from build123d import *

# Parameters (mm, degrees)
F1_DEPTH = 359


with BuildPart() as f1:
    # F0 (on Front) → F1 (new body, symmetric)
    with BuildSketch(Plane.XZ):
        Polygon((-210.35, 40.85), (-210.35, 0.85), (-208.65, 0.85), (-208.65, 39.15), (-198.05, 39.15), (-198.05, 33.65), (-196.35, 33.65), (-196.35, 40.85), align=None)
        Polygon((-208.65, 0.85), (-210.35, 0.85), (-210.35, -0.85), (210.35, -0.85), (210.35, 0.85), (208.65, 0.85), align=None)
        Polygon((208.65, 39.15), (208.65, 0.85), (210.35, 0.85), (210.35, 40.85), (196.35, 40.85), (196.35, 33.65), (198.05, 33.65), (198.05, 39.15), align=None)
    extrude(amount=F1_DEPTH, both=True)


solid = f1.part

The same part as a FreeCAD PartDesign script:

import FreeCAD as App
import Part
import Sketcher

V = App.Vector


def add_polygon(sketch, points):
    """Adds a closed chain of lines whose ends are joined by coincident constraints."""
    first, n = sketch.GeometryCount, len(points)
    for a, b in zip(points, points[1:] + points[:1]):
        sketch.addGeometry(Part.LineSegment(App.Vector(*a, 0), App.Vector(*b, 0)), False)
    for i in range(n):
        sketch.addConstraint(Sketcher.Constraint("Coincident", first + i, 2, first + (i + 1) % n, 1))

doc = App.newDocument("Part")
body = doc.addObject("PartDesign::Body", "Body")

# Sketch on XZ plane
sketch1 = doc.addObject("Sketcher::SketchObject", "Sketch")
body.addObject(sketch1)
sketch1.AttachmentSupport = (doc.XZ_Plane, [""])
sketch1.MapMode = "FlatFace"
add_polygon(sketch1, [(-210.3, 40.9), (-210.3, -0.8), (210.3, -0.8), (210.3, 40.9), (196.3, 40.9), (196.3, 33.6), (198.1, 33.6), (198.1, 39.1), (208.7, 39.1), (208.7, 0.8), (-208.7, 0.8), (-208.7, 39.1), (-198.1, 39.1), (-198.1, 33.6), (-196.3, 33.6), (-196.3, 40.9)])  # lines 0-15
sketch1.addConstraint(Sketcher.Constraint("Vertical", 0))
sketch1.addConstraint(Sketcher.Constraint("Horizontal", 1))
sketch1.addConstraint(Sketcher.Constraint("Vertical", 2))
sketch1.addConstraint(Sketcher.Constraint("Horizontal", 3))
sketch1.addConstraint(Sketcher.Constraint("Vertical", 4))
sketch1.addConstraint(Sketcher.Constraint("Horizontal", 5))
sketch1.addConstraint(Sketcher.Constraint("Vertical", 6))
sketch1.addConstraint(Sketcher.Constraint("Horizontal", 7))
sketch1.addConstraint(Sketcher.Constraint("Vertical", 8))
sketch1.addConstraint(Sketcher.Constraint("Horizontal", 9))
sketch1.addConstraint(Sketcher.Constraint("Vertical", 10))
sketch1.addConstraint(Sketcher.Constraint("Horizontal", 11))
sketch1.addConstraint(Sketcher.Constraint("Vertical", 12))
sketch1.addConstraint(Sketcher.Constraint("Horizontal", 13))
sketch1.addConstraint(Sketcher.Constraint("Vertical", 14))
sketch1.addConstraint(Sketcher.Constraint("Horizontal", 15))
sketch1.addConstraint(Sketcher.Constraint("Symmetric", 7, 2, 10, 2, -2))
sketch1.addConstraint(Sketcher.Constraint("Symmetric", 5, 2, 12, 2, -2))
sketch1.addConstraint(Sketcher.Constraint("Symmetric", 3, 2, 14, 2, -2))
sketch1.addConstraint(Sketcher.Constraint("Equal", 3, 15))
sketch1.addConstraint(Sketcher.Constraint("DistanceX", 3, 2, 3, 1, 14.0))
sketch1.addConstraint(Sketcher.Constraint("DistanceX", 1, 1, 1, 2, 420.7))
sketch1.addConstraint(Sketcher.Constraint("DistanceX", 5, 1, 5, 2, 1.7))
sketch1.addConstraint(Sketcher.Constraint("DistanceX", 7, 1, 7, 2, 10.6))
sketch1.addConstraint(Sketcher.Constraint("DistanceY", 0, 2, 0, 1, 41.7))
sketch1.addConstraint(Sketcher.Constraint("DistanceY", 4, 2, 4, 1, 7.2))
sketch1.addConstraint(Sketcher.Constraint("DistanceY", 6, 1, 6, 2, 5.5))
sketch1.addConstraint(Sketcher.Constraint("DistanceY", 8, 2, 8, 1, 38.3))
sketch1.addConstraint(Sketcher.Constraint("DistanceY", 0, 2, -1, 1, 0.85))
pad1 = doc.addObject("PartDesign::Pad", "Pad")
body.addObject(pad1)
pad1.Profile = sketch1
pad1.Length = 718
pad1.Midplane = True

doc.recompute()
